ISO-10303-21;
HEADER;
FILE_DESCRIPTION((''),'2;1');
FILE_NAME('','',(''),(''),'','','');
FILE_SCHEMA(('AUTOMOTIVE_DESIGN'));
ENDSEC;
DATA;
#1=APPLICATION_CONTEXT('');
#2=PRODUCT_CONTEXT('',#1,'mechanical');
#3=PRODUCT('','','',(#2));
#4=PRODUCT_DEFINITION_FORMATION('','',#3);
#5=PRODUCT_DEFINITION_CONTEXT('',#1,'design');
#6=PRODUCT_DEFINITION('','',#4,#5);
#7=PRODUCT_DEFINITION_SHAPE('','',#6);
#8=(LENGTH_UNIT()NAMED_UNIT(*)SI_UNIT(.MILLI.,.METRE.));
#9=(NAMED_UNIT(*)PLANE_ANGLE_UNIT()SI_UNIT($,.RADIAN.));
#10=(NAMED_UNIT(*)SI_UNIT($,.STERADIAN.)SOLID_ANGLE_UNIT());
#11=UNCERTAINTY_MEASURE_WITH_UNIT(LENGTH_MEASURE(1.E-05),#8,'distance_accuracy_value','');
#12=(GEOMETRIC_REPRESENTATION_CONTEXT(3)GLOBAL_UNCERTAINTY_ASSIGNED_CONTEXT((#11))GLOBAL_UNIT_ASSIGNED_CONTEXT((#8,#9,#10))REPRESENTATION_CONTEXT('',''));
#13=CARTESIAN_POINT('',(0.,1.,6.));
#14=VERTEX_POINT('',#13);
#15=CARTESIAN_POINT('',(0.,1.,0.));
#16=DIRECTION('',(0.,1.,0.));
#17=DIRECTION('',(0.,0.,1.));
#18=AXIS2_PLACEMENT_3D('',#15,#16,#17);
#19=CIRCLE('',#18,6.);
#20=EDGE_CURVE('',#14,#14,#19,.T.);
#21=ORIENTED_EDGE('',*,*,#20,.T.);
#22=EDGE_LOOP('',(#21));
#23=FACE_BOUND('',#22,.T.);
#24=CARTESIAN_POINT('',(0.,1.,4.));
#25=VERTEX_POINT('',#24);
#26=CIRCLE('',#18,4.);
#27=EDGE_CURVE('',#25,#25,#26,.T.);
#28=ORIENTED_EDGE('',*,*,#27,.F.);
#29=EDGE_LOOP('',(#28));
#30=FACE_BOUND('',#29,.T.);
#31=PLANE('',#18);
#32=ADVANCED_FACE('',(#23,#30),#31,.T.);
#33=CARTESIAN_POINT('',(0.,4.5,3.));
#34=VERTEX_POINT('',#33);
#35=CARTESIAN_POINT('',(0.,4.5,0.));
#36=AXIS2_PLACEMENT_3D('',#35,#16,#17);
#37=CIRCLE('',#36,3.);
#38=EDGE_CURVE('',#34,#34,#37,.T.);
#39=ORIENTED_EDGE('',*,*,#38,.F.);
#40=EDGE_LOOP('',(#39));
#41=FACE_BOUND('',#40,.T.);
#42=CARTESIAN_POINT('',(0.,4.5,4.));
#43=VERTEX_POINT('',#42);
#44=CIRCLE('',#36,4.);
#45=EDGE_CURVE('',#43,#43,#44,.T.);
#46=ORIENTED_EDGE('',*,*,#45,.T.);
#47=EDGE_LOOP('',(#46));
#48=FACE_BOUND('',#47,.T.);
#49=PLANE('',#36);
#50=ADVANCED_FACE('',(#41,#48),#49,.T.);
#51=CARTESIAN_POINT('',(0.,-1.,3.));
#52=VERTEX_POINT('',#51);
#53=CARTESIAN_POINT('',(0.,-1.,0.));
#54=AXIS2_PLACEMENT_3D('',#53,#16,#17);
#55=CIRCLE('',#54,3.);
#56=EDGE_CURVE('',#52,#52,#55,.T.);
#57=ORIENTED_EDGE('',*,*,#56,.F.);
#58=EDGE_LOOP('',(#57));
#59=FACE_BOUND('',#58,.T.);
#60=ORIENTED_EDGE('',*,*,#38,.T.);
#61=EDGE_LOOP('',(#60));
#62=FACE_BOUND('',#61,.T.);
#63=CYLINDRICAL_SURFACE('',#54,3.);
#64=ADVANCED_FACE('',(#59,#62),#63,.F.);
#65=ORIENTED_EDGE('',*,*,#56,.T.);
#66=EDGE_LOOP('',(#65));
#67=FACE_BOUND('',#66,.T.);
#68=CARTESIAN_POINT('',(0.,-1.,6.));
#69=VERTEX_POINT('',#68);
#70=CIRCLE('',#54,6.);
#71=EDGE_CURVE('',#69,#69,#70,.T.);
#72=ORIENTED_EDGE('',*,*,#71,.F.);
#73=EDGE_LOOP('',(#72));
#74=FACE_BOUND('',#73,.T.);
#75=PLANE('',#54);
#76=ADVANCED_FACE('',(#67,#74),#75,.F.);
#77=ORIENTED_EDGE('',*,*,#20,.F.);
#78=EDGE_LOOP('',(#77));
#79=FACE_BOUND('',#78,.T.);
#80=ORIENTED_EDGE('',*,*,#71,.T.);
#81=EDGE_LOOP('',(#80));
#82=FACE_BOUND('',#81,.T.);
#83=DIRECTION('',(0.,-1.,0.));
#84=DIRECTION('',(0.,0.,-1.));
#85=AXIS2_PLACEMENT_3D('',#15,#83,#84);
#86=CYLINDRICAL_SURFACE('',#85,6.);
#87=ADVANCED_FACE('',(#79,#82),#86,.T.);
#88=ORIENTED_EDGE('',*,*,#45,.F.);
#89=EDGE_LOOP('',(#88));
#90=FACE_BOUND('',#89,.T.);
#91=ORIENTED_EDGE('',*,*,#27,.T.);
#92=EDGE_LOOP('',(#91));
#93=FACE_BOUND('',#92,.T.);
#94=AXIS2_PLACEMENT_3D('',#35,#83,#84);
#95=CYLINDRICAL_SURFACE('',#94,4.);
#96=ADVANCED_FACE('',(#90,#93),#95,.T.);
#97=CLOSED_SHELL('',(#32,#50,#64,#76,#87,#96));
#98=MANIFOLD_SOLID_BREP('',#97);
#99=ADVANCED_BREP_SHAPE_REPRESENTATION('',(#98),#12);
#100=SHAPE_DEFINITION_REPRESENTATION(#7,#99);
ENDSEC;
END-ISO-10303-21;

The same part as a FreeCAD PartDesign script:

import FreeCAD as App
import Part
import Sketcher

doc = App.newDocument("Part")
body = doc.addObject("PartDesign::Body", "Body")

sketch1 = doc.addObject("Sketcher::SketchObject", "Sketch")
body.addObject(sketch1)
sketch1.AttachmentSupport = (doc.XZ_Plane, [""])
sketch1.MapMode = "FlatFace"
sketch1.addGeometry(Part.Circle(App.Vector(0, 0, 0), App.Vector(0, 0, 1), 6), False)
sketch1.addConstraint(Sketcher.Constraint("Coincident", 0, 3, -1, 1))
sketch1.addConstraint(Sketcher.Constraint("Diameter", 0, 12.0))
pad1 = doc.addObject("PartDesign::Pad", "Pad")
body.addObject(pad1)
pad1.Profile = sketch1
pad1.Length = 2
pad1.Midplane = True

sketch2 = doc.addObject("Sketcher::SketchObject", "Sketch001")
body.addObject(sketch2)
sketch2.AttachmentSupport = (doc.XZ_Plane, [""])
sketch2.MapMode = "FlatFace"
sketch2.AttachmentOffset = App.Placement(App.Vector(0, 0, -1), App.Rotation())
sketch2.addGeometry(Part.Circle(App.Vector(0, 0, 0), App.Vector(0, 0, 1), 4), False)
sketch2.addConstraint(Sketcher.Constraint("Coincident", 0, 3, -1, 1))
sketch2.addConstraint(Sketcher.Constraint("Diameter", 0, 8.0))
pad2 = doc.addObject("PartDesign::Pad", "Pad001")
body.addObject(pad2)
pad2.Profile = sketch2
pad2.Length = 3.5
pad2.Reversed = True

sketch3 = doc.addObject("Sketcher::SketchObject", "Sketch002")
body.addObject(sketch3)
sketch3.AttachmentSupport = (doc.XZ_Plane, [""])
sketch3.MapMode = "FlatFace"
sketch3.AttachmentOffset = App.Placement(App.Vector(0, 0, -4.5), App.Rotation())
sketch3.addGeometry(Part.Circle(App.Vector(0, 0, 0), App.Vector(0, 0, 1), 3), False)
sketch3.addConstraint(Sketcher.Constraint("Coincident", 0, 3, -1, 1))
sketch3.addConstraint(Sketcher.Constraint("Diameter", 0, 6.0))
pocket1 = doc.addObject("PartDesign::Pocket", "Pocket")
body.addObject(pocket1)
pocket1.Profile = sketch3
pocket1.Type = "ThroughAll"
pocket1.Reversed = True

doc.recompute()
